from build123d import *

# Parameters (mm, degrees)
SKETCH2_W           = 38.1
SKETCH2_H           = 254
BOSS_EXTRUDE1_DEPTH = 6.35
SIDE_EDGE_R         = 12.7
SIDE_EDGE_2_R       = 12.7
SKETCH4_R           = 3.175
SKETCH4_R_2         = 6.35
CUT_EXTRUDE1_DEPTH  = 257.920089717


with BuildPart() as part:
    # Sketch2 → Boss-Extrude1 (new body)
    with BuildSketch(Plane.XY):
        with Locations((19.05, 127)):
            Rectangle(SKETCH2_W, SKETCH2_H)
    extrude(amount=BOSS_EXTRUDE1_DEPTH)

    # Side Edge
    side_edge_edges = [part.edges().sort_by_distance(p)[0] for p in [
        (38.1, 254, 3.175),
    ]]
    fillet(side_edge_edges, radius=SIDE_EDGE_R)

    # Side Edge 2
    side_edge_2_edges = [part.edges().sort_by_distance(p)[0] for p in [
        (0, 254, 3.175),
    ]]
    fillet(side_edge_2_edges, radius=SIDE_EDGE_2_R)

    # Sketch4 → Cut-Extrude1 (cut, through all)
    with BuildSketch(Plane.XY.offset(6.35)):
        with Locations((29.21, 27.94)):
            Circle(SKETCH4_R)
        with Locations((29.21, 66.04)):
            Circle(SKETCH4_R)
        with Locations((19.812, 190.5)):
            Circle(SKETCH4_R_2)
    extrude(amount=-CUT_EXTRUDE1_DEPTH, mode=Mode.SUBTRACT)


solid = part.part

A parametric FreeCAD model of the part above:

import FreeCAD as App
import Part
import Sketcher
from FreeCAD import Vector
Q = App.Units.Quantity


def edges_at(feature, points):
    """Names of the edges that pass closest to the given points."""
    edges = feature.Shape.Edges
    near = lambda p: min(range(len(edges)), key=lambda i: edges[i].distToShape(Part.Vertex(*p))[0])
    return sorted({f"Edge{near(p) + 1}" for p in points})

doc = App.newDocument("Part")
body = doc.addObject("PartDesign::Body", "Body")

sketch1 = body.newObject("Sketcher::SketchObject", "Sketch")
sketch1.AttachmentSupport = (doc.getObject("XY_Plane"), [""])
sketch1.MapMode = "FlatFace"
sketch1.addGeometry(Part.LineSegment(Vector(0, 254, 0), Vector(0, 0, 0)), False)
sketch1.addGeometry(Part.LineSegment(Vector(0, 0, 0), Vector(38.1, 0, 0)), False)
sketch1.addGeometry(Part.LineSegment(Vector(38.1, 0, 0), Vector(38.1, 254, 0)), False)
sketch1.addGeometry(Part.LineSegment(Vector(38.1, 254, 0), Vector(0, 254, 0)), False)
sketch1.addConstraint(Sketcher.Constraint("Coincident", 0, 2, 1, 1))
sketch1.addConstraint(Sketcher.Constraint("Coincident", 1, 2, 2, 1))
sketch1.addConstraint(Sketcher.Constraint("Coincident", 2, 2, 3, 1))
sketch1.addConstraint(Sketcher.Constraint("Coincident", 3, 2, 0, 1))
sketch1.addConstraint(Sketcher.Constraint("Vertical", 0))
sketch1.addConstraint(Sketcher.Constraint("Horizontal", 1))
sketch1.addConstraint(Sketcher.Constraint("Vertical", 2))
sketch1.addConstraint(Sketcher.Constraint("Horizontal", 3))
sketch1.addConstraint(Sketcher.Constraint("Coincident", 0, 2, -1, 1))
sketch1.addConstraint(Sketcher.Constraint("DistanceY", 0, 2, 0, 1, Q("10 in")))
sketch1.addConstraint(Sketcher.Constraint("DistanceX", 1, 1, 1, 2, Q("1.5 in")))
pad1 = body.newObject("PartDesign::Pad", "Pad")
pad1.Profile = sketch1
pad1.Length = Q("0.25 in")
doc.recompute()

fillet = body.newObject("PartDesign::Fillet", "Fillet")
fillet.Base = (pad1, edges_at(pad1, [(38.1, 254, 3.175)]))
fillet.Radius = Q("0.5 in")
doc.recompute()

fillet2 = body.newObject("PartDesign::Fillet", "Fillet001")
fillet2.Base = (fillet, edges_at(fillet, [(0, 254, 3.175)]))
fillet2.Radius = Q("0.5 in")

sketch2 = body.newObject("Sketcher::SketchObject", "Sketch001")
sketch2.AttachmentSupport = (doc.getObject("XY_Plane"), [""])
sketch2.MapMode = "FlatFace"
sketch2.AttachmentOffset = App.Placement(Vector(0, 0, 0.25 * 25.4), App.Rotation())
sketch2.addGeometry(Part.Circle(Vector(29.21, 27.94, 0), Vector(0, 0, 1), 3.175), False)
sketch2.addGeometry(Part.Circle(Vector(29.21, 66.04, 0), Vector(0, 0, 1), 3.175), False)
sketch2.addGeometry(Part.Circle(Vector(19.812, 190.5, 0), Vector(0, 0, 1), 6.35), False)
sketch2.addConstraint(Sketcher.Constraint("Equal", 0, 1))
sketch2.addConstraint(Sketcher.Constraint("Vertical", 0, 3, 1, 3))
sketch2.addConstraint(Sketcher.Constraint("Diameter", 2, Q("0.5 in")))
sketch2.addConstraint(Sketcher.Constraint("Diameter", 0, Q("0.25 in")))
sketch2.addConstraint(Sketcher.Constraint("DistanceY", -1, 1, 0, 3, Q("1.1 in")))
sketch2.addConstraint(Sketcher.Constraint("DistanceY", -1, 1, 1, 3, Q("2.6 in")))
sketch2.addConstraint(Sketcher.Constraint("DistanceY", -1, 1, 2, 3, Q("7.5 in")))
sketch2.addConstraint(Sketcher.Constraint("DistanceX", -1, 1, 0, 3, Q("1.15 in")))
sketch2.addConstraint(Sketcher.Constraint("DistanceX", -1, 1, 2, 3, Q("0.78 in")))
pocket1 = body.newObject("PartDesign::Pocket", "Pocket")
pocket1.Profile = sketch2
pocket1.Type = "ThroughAll"

doc.recompute()
